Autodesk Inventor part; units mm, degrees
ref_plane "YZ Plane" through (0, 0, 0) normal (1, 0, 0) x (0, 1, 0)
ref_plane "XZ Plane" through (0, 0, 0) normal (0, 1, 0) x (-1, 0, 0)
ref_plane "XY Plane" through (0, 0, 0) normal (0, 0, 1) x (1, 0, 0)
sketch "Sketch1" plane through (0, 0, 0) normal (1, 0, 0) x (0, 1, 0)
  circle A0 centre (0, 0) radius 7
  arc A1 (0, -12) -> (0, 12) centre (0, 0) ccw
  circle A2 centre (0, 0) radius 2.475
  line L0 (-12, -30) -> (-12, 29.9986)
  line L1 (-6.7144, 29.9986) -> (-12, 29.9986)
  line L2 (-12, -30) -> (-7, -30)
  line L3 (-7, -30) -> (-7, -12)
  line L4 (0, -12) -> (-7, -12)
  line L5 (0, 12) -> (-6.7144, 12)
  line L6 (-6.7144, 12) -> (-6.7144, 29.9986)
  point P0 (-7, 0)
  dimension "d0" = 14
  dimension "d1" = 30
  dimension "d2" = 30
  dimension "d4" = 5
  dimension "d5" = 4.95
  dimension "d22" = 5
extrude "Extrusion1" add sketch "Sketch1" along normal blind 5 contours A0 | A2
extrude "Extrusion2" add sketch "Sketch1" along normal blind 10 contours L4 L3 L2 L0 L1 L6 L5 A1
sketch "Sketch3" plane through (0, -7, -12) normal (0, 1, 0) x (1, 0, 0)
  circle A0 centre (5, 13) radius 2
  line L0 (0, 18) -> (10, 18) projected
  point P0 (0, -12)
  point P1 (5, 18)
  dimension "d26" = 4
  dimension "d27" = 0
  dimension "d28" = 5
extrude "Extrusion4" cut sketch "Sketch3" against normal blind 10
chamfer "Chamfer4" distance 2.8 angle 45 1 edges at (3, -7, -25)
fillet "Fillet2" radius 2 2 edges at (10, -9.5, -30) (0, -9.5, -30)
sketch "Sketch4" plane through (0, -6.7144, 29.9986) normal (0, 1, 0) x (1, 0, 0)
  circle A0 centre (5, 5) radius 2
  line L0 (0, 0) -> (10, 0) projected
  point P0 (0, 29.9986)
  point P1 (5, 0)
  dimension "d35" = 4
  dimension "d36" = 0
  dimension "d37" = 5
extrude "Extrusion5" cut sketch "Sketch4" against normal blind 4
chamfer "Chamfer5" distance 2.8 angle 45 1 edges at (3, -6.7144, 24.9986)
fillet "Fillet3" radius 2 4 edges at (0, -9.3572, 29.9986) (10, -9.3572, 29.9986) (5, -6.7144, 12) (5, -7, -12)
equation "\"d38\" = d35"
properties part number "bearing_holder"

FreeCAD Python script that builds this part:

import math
import FreeCAD as App
import Part
import Sketcher


def edges_at(feature, points):
    """Names of the edges that pass closest to the given points."""
    edges = feature.Shape.Edges
    near = lambda p: min(range(len(edges)), key=lambda i: edges[i].distToShape(Part.Vertex(*p))[0])
    return sorted({f"Edge{near(p) + 1}" for p in points})

doc = App.newDocument("Part")
params = doc.addObject("Spreadsheet::Sheet", "Params")
for row, (alias, value) in enumerate([
    ("sketch1_diameter", "14 mm"),
    ("pad1_length", "5 mm"),
    ("sketch2_diameter", "14 mm"),
    ("sketch2_width", "5 mm"),
    ("sketch2_radius", "12 mm"),
    ("sketch2_width2", "7 mm"),
    ("pad2_length", "10 mm"),
    ("sketch3_diameter", "4 mm"),
    ("pocket1_length", "10 mm"),
    ("chamfer_size", "2.8 mm"),
    ("fillet_radius", "2 mm"),
    ("sketch4_diameter", "4 mm"),
    ("pocket2_length", "4 mm"),
    ("chamfer2_size", "2.8 mm"),
    ("fillet2_radius", "2 mm"),
], start=1):
    params.set(f"A{row}", alias)
    params.set(f"B{row}", "=" + value)
    params.setAlias(f"B{row}", alias)

body = doc.addObject("PartDesign::Body", "Body")

sketch1 = body.newObject("Sketcher::SketchObject", "Sketch")
sketch1.AttachmentSupport = (doc.getObject("YZ_Plane"), [""])
sketch1.MapMode = "FlatFace"
sketch1.addGeometry(Part.Circle(App.Vector(0, 0, 0), App.Vector(0, 0, 1), 7), False)
sketch1.addConstraint(Sketcher.Constraint("Coincident", 0, 3, -1, 1))
sketch1.addConstraint(Sketcher.Constraint("Diameter", 0, 14.0))
sketch1.setExpression("Constraints[1]", "Params.sketch1_diameter")
pad1 = body.newObject("PartDesign::Pad", "Pad")
pad1.Profile = sketch1
pad1.setExpression("Length", "Params.pad1_length")

sketch2 = body.newObject("Sketcher::SketchObject", "Sketch001")
sketch2.AttachmentSupport = (doc.getObject("YZ_Plane"), [""])
sketch2.MapMode = "FlatFace"
sketch2.addGeometry(Part.LineSegment(App.Vector(-7, -12, 0), App.Vector(0, -12, 0)), False)
sketch2.addGeometry(Part.ArcOfCircle(Part.Circle(App.Vector(0, 0, 0), App.Vector(0, 0, 1), 12), math.radians(-90), math.radians(90)), False)
sketch2.addGeometry(Part.LineSegment(App.Vector(0, 12, 0), App.Vector(-7, 12, 0)), False)
sketch2.addGeometry(Part.LineSegment(App.Vector(-7, 12, 0), App.Vector(-7, 30, 0)), False)
sketch2.addGeometry(Part.LineSegment(App.Vector(-7, 30, 0), App.Vector(-12, 30, 0)), False)
sketch2.addGeometry(Part.LineSegment(App.Vector(-12, 30, 0), App.Vector(-12, -30, 0)), False)
sketch2.addGeometry(Part.LineSegment(App.Vector(-12, -30, 0), App.Vector(-7, -30, 0)), False)
sketch2.addGeometry(Part.LineSegment(App.Vector(-7, -30, 0), App.Vector(-7, -12, 0)), False)
sketch2.addGeometry(Part.Circle(App.Vector(0, 0, 0), App.Vector(0, 0, 1), 7), False)
sketch2.addConstraint(Sketcher.Constraint("Tangent", 0, 2, 1, 1))
sketch2.addConstraint(Sketcher.Constraint("Tangent", 1, 2, 2, 1))
sketch2.addConstraint(Sketcher.Constraint("Coincident", 2, 2, 3, 1))
sketch2.addConstraint(Sketcher.Constraint("Coincident", 3, 2, 4, 1))
sketch2.addConstraint(Sketcher.Constraint("Coincident", 4, 2, 5, 1))
sketch2.addConstraint(Sketcher.Constraint("Coincident", 5, 2, 6, 1))
sketch2.addConstraint(Sketcher.Constraint("Coincident", 6, 2, 7, 1))
sketch2.addConstraint(Sketcher.Constraint("Coincident", 7, 2, 0, 1))
sketch2.addConstraint(Sketcher.Constraint("Horizontal", 0))
sketch2.addConstraint(Sketcher.Constraint("Horizontal", 2))
sketch2.addConstraint(Sketcher.Constraint("Vertical", 3))
sketch2.addConstraint(Sketcher.Constraint("Horizontal", 4))
sketch2.addConstraint(Sketcher.Constraint("Vertical", 5))
sketch2.addConstraint(Sketcher.Constraint("Horizontal", 6))
sketch2.addConstraint(Sketcher.Constraint("Vertical", 7))
sketch2.addConstraint(Sketcher.Constraint("Coincident", 1, 3, -1, 1))
sketch2.addConstraint(Sketcher.Constraint("Coincident", 8, 3, -1, 1))
sketch2.addConstraint(Sketcher.Constraint("Diameter", 8, 14.0))
sketch2.addConstraint(Sketcher.Constraint("DistanceX", 6, 1, 6, 2, 5.0))
sketch2.addConstraint(Sketcher.Constraint("DistanceY", 5, 2, -1, 1, 30.0))
sketch2.addConstraint(Sketcher.Constraint("Radius", 1, 12.0))
sketch2.addConstraint(Sketcher.Constraint("DistanceX", 0, 1, 0, 2, 7.0))
sketch2.addConstraint(Sketcher.Constraint("DistanceX", 2, 2, 2, 1, 6.7144))
sketch2.addConstraint(Sketcher.Constraint("DistanceY", 3, 1, 3, 2, 17.9986))
sketch2.setExpression("Constraints[17]", "Params.sketch2_diameter")
sketch2.setExpression("Constraints[18]", "Params.sketch2_width")
sketch2.setExpression("Constraints[20]", "Params.sketch2_radius")
sketch2.setExpression("Constraints[21]", "Params.sketch2_width2")
pad2 = body.newObject("PartDesign::Pad", "Pad001")
pad2.Profile = sketch2
pad2.setExpression("Length", "Params.pad2_length")

sketch3 = body.newObject("Sketcher::SketchObject", "Sketch002")
sketch3.AttachmentSupport = (doc.getObject("XZ_Plane"), [""])
sketch3.MapMode = "FlatFace"
sketch3.AttachmentOffset = App.Placement(App.Vector(0, 0, 7), App.Rotation())
sketch3.addGeometry(Part.Circle(App.Vector(5, -25, 0), App.Vector(0, 0, 1), 2), False)
sketch3.addConstraint(Sketcher.Constraint("Diameter", 0, 4.0))
sketch3.addConstraint(Sketcher.Constraint("DistanceX", -1, 1, 0, 3, 5.0))
sketch3.addConstraint(Sketcher.Constraint("DistanceY", 0, 3, -1, 1, 25.0))
sketch3.setExpression("Constraints[0]", "Params.sketch3_diameter")
pocket1 = body.newObject("PartDesign::Pocket", "Pocket")
pocket1.Profile = sketch3
pocket1.setExpression("Length", "Params.pocket1_length")
pocket1.Reversed = True
doc.recompute()

chamfer = body.newObject("PartDesign::Chamfer", "Chamfer")
chamfer.Base = (pocket1, edges_at(pocket1, [(3, -7, -25)]))
chamfer.setExpression("Size", "Params.chamfer_size")
doc.recompute()

fillet = body.newObject("PartDesign::Fillet", "Fillet")
fillet.Base = (chamfer, edges_at(chamfer, [(10, -9.5, -30), (0, -9.5, -30)]))
fillet.setExpression("Radius", "Params.fillet_radius")

sketch4 = body.newObject("Sketcher::SketchObject", "Sketch003")
sketch4.AttachmentSupport = (doc.getObject("XZ_Plane"), [""])
sketch4.MapMode = "FlatFace"
sketch4.AttachmentOffset = App.Placement(App.Vector(0, 0, 6.7144), App.Rotation())
sketch4.addGeometry(Part.Circle(App.Vector(5, 25, 0), App.Vector(0, 0, 1), 2), False)
sketch4.addConstraint(Sketcher.Constraint("Diameter", 0, 4.0))
sketch4.addConstraint(Sketcher.Constraint("DistanceX", -1, 1, 0, 3, 5.0))
sketch4.addConstraint(Sketcher.Constraint("DistanceY", -1, 1, 0, 3, 24.9986))
sketch4.setExpression("Constraints[0]", "Params.sketch4_diameter")
pocket2 = body.newObject("PartDesign::Pocket", "Pocket001")
pocket2.Profile = sketch4
pocket2.setExpression("Length", "Params.pocket2_length")
pocket2.Reversed = True
doc.recompute()

chamfer2 = body.newObject("PartDesign::Chamfer", "Chamfer001")
chamfer2.Base = (pocket2, edges_at(pocket2, [(3, -6.714, 24.999)]))
chamfer2.setExpression("Size", "Params.chamfer2_size")
doc.recompute()

fillet2 = body.newObject("PartDesign::Fillet", "Fillet001")
fillet2.Base = (chamfer2, edges_at(chamfer2, [
    (0, -9.357, 29.999),
    (10, -9.357, 29.999),
    (5, -6.714, 12),
    (5, -7, -12),
]))
fillet2.setExpression("Radius", "Params.fillet2_radius")

doc.recompute()
